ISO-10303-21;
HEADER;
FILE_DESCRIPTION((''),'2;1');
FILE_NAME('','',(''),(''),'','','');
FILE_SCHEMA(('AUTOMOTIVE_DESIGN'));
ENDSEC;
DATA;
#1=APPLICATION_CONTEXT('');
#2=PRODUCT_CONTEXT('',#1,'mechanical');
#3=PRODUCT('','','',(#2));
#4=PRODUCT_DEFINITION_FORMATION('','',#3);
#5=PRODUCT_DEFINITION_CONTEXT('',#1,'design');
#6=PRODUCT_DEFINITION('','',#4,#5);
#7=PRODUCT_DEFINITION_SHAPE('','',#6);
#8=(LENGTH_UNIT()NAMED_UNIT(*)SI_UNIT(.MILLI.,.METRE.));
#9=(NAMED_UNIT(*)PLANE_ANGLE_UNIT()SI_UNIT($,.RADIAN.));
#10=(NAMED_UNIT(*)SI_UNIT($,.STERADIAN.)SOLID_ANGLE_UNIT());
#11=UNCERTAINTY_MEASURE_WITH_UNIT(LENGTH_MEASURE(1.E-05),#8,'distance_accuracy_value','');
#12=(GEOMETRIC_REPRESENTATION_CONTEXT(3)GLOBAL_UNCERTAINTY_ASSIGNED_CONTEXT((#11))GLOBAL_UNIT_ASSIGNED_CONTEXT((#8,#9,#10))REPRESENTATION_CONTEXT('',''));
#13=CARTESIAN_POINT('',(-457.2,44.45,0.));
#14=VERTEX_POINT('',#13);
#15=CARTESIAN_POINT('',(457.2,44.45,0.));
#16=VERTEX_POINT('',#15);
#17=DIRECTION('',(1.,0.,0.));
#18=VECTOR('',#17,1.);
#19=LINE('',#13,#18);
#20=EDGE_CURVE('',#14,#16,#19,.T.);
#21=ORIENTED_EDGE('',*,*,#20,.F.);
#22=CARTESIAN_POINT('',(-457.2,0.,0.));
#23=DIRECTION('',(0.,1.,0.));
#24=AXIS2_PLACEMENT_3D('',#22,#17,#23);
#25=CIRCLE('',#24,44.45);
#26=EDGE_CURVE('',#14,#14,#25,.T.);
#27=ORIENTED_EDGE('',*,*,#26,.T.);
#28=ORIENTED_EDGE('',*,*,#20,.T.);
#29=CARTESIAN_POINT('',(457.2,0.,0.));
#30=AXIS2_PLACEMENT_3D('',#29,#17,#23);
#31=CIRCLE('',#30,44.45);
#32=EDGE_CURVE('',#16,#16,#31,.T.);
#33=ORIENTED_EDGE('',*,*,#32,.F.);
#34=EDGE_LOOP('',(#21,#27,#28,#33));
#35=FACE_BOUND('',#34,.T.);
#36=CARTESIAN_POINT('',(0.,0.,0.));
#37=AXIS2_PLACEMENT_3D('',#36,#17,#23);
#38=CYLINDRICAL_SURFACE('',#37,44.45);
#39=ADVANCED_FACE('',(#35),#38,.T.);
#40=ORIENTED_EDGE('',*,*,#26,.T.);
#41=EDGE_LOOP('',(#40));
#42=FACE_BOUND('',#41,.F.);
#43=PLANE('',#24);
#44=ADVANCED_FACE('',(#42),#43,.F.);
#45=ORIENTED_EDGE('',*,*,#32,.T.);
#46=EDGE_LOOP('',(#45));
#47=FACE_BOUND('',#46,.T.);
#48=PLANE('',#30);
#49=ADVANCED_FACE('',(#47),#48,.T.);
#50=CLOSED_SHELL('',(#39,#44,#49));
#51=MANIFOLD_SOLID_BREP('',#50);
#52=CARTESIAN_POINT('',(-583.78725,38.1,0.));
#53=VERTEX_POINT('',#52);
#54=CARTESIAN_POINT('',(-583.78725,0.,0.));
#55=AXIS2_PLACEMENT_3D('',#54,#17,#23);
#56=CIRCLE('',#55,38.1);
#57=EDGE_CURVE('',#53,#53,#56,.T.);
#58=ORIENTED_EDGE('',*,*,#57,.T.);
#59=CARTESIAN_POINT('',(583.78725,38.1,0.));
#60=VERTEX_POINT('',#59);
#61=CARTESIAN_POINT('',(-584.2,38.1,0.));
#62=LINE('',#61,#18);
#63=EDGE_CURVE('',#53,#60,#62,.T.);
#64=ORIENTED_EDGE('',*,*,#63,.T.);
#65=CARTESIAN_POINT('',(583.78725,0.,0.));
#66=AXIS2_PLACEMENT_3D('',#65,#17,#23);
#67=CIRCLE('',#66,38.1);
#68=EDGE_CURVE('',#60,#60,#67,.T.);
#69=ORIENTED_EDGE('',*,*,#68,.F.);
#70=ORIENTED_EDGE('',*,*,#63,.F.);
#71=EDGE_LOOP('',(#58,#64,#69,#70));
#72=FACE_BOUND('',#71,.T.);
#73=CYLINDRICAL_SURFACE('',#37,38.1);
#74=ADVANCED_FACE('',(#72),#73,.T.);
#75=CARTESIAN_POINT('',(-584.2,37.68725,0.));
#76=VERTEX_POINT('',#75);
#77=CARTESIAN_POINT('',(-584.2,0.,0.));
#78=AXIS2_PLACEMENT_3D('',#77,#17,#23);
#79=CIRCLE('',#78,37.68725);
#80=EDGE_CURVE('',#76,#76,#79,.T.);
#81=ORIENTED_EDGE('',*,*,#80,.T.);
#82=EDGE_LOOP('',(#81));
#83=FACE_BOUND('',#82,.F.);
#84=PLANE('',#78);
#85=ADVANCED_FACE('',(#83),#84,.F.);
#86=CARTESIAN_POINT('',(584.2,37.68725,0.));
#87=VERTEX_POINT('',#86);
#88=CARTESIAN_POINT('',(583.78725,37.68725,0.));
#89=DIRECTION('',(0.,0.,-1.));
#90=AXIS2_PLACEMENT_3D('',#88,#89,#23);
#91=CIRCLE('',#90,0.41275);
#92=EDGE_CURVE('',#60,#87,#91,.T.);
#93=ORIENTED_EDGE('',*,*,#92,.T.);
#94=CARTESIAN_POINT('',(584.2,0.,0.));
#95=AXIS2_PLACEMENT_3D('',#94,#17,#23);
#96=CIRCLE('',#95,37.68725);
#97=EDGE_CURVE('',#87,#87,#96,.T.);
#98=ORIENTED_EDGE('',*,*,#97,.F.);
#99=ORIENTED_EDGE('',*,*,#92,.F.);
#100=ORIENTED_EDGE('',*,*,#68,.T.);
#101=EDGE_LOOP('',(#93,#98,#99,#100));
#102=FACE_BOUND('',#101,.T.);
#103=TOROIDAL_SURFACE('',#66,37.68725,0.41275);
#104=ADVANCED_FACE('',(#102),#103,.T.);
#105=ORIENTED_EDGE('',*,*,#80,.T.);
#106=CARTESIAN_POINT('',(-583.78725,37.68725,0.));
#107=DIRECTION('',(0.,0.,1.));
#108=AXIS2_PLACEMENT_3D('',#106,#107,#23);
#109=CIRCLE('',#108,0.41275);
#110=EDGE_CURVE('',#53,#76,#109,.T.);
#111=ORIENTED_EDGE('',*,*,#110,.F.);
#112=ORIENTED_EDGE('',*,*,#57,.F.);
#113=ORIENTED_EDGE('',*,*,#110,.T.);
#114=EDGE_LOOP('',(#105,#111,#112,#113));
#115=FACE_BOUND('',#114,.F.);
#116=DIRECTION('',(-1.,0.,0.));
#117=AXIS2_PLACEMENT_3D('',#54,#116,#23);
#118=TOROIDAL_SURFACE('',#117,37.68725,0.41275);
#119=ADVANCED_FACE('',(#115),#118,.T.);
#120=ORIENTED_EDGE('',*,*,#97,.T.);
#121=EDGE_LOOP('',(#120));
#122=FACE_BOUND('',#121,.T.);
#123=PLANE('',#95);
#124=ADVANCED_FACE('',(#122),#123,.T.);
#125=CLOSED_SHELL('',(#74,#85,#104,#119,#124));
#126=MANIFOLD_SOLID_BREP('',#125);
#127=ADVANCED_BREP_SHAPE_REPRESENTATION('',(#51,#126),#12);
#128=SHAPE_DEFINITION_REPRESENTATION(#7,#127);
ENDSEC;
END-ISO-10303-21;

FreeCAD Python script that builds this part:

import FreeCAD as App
import Part
import Sketcher

V = App.Vector
Q = App.Units.Quantity


def edges_at(feature, points):
    """Names of the edges that pass closest to the given points."""
    edges = feature.Shape.Edges
    near = lambda p: min(range(len(edges)), key=lambda i: edges[i].distToShape(Part.Vertex(*p))[0])
    return sorted({f"Edge{near(p) + 1}" for p in points})

doc = App.newDocument("Part")
body = doc.addObject("PartDesign::Body", "Body")

sketch1 = body.newObject("Sketcher::SketchObject", "Sketch")
sketch1.AttachmentSupport = (doc.getObject("YZ_Plane"), [""])
sketch1.MapMode = "FlatFace"
sketch1.addGeometry(Part.Circle(V(0, 0, 0), V(0, 0, 1), 38), False)
sketch1.addConstraint(Sketcher.Constraint("Coincident", 0, 3, -1, 1))
sketch1.addConstraint(Sketcher.Constraint("Diameter", 0, Q("3 in")))
pad1 = body.newObject("PartDesign::Pad", "Pad")
pad1.Profile = sketch1
pad1.Length = Q("46 in")
pad1.Midplane = True
doc.recompute()

fillet = body.newObject("PartDesign::Fillet", "Fillet")
fillet.Base = (pad1, edges_at(pad1, [(-584.2, -38.1, 0), (584.2, -38.1, 0)]))
fillet.Radius = 0.41275
body2 = doc.addObject("PartDesign::Body", "Body001")

sketch2 = body2.newObject("Sketcher::SketchObject", "Sketch001")
sketch2.AttachmentSupport = (doc.getObject("YZ_Plane001"), [""])
sketch2.MapMode = "FlatFace"
sketch2.addGeometry(Part.Circle(V(0, 0, 0), V(0, 0, 1), 44), False)
sketch2.addConstraint(Sketcher.Constraint("Coincident", 0, 3, -1, 1))
sketch2.addConstraint(Sketcher.Constraint("Diameter", 0, Q("3.5 in")))
pad2 = body2.newObject("PartDesign::Pad", "Pad001")
pad2.Profile = sketch2
pad2.Length = Q("36 in")
pad2.Midplane = True

doc.recompute()
